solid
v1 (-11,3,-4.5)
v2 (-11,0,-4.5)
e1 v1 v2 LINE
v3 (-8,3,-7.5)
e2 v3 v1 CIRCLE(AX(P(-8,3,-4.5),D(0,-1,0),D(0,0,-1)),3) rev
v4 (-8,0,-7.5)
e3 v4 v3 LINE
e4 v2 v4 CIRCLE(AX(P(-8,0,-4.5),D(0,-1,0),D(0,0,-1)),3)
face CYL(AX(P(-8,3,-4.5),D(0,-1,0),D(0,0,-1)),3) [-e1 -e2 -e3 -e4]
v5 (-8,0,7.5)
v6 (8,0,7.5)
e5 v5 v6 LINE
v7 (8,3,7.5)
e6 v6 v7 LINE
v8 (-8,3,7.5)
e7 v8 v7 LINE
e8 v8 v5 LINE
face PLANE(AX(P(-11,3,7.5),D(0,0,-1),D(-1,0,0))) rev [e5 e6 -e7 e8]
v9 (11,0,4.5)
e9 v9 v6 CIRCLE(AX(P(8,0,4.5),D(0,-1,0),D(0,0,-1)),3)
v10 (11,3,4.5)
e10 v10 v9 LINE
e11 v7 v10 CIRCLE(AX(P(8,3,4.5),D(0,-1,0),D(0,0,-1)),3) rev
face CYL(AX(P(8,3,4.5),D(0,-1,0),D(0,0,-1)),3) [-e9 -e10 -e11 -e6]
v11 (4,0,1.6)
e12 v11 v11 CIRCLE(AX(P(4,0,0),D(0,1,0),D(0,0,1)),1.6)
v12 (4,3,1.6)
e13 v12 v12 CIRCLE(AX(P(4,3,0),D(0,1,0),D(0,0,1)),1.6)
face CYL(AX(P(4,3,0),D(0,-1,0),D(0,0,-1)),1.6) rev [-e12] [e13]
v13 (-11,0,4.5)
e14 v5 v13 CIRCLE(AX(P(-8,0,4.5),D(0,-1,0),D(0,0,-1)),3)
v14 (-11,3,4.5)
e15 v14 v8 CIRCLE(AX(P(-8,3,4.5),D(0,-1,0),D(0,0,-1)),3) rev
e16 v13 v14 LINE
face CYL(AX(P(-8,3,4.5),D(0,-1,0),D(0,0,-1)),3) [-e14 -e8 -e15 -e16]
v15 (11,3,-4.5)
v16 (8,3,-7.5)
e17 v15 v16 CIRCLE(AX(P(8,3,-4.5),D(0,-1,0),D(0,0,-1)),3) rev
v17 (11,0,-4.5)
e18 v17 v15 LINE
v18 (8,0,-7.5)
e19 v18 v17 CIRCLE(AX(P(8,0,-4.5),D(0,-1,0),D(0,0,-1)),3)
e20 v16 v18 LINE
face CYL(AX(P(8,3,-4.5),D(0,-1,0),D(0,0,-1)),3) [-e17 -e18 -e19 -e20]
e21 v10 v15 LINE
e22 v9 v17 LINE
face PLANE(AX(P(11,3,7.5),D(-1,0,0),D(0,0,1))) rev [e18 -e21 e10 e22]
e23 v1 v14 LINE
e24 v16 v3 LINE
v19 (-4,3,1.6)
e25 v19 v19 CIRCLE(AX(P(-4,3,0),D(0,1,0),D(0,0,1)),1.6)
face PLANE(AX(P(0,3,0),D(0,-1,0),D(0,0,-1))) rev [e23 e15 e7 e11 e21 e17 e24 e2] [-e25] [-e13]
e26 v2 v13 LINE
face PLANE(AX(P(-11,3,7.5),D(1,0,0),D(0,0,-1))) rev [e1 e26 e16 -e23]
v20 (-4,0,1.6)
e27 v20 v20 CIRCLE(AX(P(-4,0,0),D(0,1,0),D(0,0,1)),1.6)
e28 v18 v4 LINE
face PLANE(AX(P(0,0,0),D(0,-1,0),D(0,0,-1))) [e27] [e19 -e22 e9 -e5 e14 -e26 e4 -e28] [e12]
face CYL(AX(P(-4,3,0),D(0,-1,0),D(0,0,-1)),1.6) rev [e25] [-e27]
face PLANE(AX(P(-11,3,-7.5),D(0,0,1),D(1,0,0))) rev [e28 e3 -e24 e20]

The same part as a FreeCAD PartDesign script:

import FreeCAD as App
import Part
import Sketcher
Q = App.Units.Quantity


def edges_at(feature, points):
    """Names of the edges that pass closest to the given points."""
    edges = feature.Shape.Edges
    near = lambda p: min(range(len(edges)), key=lambda i: edges[i].distToShape(Part.Vertex(*p))[0])
    return sorted({f"Edge{near(p) + 1}" for p in points})

doc = App.newDocument("Part")
body = doc.addObject("PartDesign::Body", "Body")

# Sketch on XZ plane
sketch1 = doc.addObject("Sketcher::SketchObject", "Sketch")
body.addObject(sketch1)
sketch1.AttachmentSupport = (doc.XZ_Plane, [""])
sketch1.MapMode = "FlatFace"
sketch1.addGeometry([
    Part.LineSegment(App.Vector(-11, -7.5, 0), App.Vector(-11, 7.5, 0)),  # 0
    Part.LineSegment(App.Vector(-11, 7.5, 0), App.Vector(11, 7.5, 0)),  # 1
    Part.LineSegment(App.Vector(11, 7.5, 0), App.Vector(11, -7.5, 0)),  # 2
    Part.LineSegment(App.Vector(11, -7.5, 0), App.Vector(-11, -7.5, 0)),  # 3
    Part.Circle(App.Vector(-4, 0, 0), App.Vector(0, 0, 1), 1.6),  # 4
    Part.Circle(App.Vector(4, 0, 0), App.Vector(0, 0, 1), 1.6),  # 5
], False)
sketch1.addConstraint([
    Sketcher.Constraint("Coincident", 0, 2, 1, 1),
    Sketcher.Constraint("Coincident", 1, 2, 2, 1),
    Sketcher.Constraint("Coincident", 2, 2, 3, 1),
    Sketcher.Constraint("Coincident", 3, 2, 0, 1),
    Sketcher.Constraint("Vertical", 0),
    Sketcher.Constraint("Horizontal", 1),
    Sketcher.Constraint("Vertical", 2),
    Sketcher.Constraint("Horizontal", 3),
    Sketcher.Constraint("Equal", 4, 5),
    Sketcher.Constraint("Symmetric", 4, 3, 5, 3, -1, 1),
    Sketcher.Constraint("Symmetric", 0, 2, 2, 2, -1, 1),
    Sketcher.Constraint("PointOnObject", 4, 3, -1),
    Sketcher.Constraint("Diameter", 4, Q("3.2 mm")),
    Sketcher.Constraint("DistanceX", 1, 1, 1, 2, Q("22 mm")),
    Sketcher.Constraint("DistanceY", 0, 1, 0, 2, Q("15 mm")),
    Sketcher.Constraint("DistanceX", 4, 3, -1, 1, Q("4 mm")),
])
pad1 = doc.addObject("PartDesign::Pad", "Pad")
body.addObject(pad1)
pad1.Profile = sketch1
pad1.Length = 3
pad1.Reversed = True
doc.recompute()

fillet = doc.addObject("PartDesign::Fillet", "Fillet")
body.addObject(fillet)
fillet.Base = (pad1, edges_at(pad1, [
    (11, 1.5, 7.5),
    (-11, 1.5, 7.5),
    (-11, 1.5, -7.5),
    (11, 1.5, -7.5),
]))
fillet.Radius = 3

doc.recompute()
